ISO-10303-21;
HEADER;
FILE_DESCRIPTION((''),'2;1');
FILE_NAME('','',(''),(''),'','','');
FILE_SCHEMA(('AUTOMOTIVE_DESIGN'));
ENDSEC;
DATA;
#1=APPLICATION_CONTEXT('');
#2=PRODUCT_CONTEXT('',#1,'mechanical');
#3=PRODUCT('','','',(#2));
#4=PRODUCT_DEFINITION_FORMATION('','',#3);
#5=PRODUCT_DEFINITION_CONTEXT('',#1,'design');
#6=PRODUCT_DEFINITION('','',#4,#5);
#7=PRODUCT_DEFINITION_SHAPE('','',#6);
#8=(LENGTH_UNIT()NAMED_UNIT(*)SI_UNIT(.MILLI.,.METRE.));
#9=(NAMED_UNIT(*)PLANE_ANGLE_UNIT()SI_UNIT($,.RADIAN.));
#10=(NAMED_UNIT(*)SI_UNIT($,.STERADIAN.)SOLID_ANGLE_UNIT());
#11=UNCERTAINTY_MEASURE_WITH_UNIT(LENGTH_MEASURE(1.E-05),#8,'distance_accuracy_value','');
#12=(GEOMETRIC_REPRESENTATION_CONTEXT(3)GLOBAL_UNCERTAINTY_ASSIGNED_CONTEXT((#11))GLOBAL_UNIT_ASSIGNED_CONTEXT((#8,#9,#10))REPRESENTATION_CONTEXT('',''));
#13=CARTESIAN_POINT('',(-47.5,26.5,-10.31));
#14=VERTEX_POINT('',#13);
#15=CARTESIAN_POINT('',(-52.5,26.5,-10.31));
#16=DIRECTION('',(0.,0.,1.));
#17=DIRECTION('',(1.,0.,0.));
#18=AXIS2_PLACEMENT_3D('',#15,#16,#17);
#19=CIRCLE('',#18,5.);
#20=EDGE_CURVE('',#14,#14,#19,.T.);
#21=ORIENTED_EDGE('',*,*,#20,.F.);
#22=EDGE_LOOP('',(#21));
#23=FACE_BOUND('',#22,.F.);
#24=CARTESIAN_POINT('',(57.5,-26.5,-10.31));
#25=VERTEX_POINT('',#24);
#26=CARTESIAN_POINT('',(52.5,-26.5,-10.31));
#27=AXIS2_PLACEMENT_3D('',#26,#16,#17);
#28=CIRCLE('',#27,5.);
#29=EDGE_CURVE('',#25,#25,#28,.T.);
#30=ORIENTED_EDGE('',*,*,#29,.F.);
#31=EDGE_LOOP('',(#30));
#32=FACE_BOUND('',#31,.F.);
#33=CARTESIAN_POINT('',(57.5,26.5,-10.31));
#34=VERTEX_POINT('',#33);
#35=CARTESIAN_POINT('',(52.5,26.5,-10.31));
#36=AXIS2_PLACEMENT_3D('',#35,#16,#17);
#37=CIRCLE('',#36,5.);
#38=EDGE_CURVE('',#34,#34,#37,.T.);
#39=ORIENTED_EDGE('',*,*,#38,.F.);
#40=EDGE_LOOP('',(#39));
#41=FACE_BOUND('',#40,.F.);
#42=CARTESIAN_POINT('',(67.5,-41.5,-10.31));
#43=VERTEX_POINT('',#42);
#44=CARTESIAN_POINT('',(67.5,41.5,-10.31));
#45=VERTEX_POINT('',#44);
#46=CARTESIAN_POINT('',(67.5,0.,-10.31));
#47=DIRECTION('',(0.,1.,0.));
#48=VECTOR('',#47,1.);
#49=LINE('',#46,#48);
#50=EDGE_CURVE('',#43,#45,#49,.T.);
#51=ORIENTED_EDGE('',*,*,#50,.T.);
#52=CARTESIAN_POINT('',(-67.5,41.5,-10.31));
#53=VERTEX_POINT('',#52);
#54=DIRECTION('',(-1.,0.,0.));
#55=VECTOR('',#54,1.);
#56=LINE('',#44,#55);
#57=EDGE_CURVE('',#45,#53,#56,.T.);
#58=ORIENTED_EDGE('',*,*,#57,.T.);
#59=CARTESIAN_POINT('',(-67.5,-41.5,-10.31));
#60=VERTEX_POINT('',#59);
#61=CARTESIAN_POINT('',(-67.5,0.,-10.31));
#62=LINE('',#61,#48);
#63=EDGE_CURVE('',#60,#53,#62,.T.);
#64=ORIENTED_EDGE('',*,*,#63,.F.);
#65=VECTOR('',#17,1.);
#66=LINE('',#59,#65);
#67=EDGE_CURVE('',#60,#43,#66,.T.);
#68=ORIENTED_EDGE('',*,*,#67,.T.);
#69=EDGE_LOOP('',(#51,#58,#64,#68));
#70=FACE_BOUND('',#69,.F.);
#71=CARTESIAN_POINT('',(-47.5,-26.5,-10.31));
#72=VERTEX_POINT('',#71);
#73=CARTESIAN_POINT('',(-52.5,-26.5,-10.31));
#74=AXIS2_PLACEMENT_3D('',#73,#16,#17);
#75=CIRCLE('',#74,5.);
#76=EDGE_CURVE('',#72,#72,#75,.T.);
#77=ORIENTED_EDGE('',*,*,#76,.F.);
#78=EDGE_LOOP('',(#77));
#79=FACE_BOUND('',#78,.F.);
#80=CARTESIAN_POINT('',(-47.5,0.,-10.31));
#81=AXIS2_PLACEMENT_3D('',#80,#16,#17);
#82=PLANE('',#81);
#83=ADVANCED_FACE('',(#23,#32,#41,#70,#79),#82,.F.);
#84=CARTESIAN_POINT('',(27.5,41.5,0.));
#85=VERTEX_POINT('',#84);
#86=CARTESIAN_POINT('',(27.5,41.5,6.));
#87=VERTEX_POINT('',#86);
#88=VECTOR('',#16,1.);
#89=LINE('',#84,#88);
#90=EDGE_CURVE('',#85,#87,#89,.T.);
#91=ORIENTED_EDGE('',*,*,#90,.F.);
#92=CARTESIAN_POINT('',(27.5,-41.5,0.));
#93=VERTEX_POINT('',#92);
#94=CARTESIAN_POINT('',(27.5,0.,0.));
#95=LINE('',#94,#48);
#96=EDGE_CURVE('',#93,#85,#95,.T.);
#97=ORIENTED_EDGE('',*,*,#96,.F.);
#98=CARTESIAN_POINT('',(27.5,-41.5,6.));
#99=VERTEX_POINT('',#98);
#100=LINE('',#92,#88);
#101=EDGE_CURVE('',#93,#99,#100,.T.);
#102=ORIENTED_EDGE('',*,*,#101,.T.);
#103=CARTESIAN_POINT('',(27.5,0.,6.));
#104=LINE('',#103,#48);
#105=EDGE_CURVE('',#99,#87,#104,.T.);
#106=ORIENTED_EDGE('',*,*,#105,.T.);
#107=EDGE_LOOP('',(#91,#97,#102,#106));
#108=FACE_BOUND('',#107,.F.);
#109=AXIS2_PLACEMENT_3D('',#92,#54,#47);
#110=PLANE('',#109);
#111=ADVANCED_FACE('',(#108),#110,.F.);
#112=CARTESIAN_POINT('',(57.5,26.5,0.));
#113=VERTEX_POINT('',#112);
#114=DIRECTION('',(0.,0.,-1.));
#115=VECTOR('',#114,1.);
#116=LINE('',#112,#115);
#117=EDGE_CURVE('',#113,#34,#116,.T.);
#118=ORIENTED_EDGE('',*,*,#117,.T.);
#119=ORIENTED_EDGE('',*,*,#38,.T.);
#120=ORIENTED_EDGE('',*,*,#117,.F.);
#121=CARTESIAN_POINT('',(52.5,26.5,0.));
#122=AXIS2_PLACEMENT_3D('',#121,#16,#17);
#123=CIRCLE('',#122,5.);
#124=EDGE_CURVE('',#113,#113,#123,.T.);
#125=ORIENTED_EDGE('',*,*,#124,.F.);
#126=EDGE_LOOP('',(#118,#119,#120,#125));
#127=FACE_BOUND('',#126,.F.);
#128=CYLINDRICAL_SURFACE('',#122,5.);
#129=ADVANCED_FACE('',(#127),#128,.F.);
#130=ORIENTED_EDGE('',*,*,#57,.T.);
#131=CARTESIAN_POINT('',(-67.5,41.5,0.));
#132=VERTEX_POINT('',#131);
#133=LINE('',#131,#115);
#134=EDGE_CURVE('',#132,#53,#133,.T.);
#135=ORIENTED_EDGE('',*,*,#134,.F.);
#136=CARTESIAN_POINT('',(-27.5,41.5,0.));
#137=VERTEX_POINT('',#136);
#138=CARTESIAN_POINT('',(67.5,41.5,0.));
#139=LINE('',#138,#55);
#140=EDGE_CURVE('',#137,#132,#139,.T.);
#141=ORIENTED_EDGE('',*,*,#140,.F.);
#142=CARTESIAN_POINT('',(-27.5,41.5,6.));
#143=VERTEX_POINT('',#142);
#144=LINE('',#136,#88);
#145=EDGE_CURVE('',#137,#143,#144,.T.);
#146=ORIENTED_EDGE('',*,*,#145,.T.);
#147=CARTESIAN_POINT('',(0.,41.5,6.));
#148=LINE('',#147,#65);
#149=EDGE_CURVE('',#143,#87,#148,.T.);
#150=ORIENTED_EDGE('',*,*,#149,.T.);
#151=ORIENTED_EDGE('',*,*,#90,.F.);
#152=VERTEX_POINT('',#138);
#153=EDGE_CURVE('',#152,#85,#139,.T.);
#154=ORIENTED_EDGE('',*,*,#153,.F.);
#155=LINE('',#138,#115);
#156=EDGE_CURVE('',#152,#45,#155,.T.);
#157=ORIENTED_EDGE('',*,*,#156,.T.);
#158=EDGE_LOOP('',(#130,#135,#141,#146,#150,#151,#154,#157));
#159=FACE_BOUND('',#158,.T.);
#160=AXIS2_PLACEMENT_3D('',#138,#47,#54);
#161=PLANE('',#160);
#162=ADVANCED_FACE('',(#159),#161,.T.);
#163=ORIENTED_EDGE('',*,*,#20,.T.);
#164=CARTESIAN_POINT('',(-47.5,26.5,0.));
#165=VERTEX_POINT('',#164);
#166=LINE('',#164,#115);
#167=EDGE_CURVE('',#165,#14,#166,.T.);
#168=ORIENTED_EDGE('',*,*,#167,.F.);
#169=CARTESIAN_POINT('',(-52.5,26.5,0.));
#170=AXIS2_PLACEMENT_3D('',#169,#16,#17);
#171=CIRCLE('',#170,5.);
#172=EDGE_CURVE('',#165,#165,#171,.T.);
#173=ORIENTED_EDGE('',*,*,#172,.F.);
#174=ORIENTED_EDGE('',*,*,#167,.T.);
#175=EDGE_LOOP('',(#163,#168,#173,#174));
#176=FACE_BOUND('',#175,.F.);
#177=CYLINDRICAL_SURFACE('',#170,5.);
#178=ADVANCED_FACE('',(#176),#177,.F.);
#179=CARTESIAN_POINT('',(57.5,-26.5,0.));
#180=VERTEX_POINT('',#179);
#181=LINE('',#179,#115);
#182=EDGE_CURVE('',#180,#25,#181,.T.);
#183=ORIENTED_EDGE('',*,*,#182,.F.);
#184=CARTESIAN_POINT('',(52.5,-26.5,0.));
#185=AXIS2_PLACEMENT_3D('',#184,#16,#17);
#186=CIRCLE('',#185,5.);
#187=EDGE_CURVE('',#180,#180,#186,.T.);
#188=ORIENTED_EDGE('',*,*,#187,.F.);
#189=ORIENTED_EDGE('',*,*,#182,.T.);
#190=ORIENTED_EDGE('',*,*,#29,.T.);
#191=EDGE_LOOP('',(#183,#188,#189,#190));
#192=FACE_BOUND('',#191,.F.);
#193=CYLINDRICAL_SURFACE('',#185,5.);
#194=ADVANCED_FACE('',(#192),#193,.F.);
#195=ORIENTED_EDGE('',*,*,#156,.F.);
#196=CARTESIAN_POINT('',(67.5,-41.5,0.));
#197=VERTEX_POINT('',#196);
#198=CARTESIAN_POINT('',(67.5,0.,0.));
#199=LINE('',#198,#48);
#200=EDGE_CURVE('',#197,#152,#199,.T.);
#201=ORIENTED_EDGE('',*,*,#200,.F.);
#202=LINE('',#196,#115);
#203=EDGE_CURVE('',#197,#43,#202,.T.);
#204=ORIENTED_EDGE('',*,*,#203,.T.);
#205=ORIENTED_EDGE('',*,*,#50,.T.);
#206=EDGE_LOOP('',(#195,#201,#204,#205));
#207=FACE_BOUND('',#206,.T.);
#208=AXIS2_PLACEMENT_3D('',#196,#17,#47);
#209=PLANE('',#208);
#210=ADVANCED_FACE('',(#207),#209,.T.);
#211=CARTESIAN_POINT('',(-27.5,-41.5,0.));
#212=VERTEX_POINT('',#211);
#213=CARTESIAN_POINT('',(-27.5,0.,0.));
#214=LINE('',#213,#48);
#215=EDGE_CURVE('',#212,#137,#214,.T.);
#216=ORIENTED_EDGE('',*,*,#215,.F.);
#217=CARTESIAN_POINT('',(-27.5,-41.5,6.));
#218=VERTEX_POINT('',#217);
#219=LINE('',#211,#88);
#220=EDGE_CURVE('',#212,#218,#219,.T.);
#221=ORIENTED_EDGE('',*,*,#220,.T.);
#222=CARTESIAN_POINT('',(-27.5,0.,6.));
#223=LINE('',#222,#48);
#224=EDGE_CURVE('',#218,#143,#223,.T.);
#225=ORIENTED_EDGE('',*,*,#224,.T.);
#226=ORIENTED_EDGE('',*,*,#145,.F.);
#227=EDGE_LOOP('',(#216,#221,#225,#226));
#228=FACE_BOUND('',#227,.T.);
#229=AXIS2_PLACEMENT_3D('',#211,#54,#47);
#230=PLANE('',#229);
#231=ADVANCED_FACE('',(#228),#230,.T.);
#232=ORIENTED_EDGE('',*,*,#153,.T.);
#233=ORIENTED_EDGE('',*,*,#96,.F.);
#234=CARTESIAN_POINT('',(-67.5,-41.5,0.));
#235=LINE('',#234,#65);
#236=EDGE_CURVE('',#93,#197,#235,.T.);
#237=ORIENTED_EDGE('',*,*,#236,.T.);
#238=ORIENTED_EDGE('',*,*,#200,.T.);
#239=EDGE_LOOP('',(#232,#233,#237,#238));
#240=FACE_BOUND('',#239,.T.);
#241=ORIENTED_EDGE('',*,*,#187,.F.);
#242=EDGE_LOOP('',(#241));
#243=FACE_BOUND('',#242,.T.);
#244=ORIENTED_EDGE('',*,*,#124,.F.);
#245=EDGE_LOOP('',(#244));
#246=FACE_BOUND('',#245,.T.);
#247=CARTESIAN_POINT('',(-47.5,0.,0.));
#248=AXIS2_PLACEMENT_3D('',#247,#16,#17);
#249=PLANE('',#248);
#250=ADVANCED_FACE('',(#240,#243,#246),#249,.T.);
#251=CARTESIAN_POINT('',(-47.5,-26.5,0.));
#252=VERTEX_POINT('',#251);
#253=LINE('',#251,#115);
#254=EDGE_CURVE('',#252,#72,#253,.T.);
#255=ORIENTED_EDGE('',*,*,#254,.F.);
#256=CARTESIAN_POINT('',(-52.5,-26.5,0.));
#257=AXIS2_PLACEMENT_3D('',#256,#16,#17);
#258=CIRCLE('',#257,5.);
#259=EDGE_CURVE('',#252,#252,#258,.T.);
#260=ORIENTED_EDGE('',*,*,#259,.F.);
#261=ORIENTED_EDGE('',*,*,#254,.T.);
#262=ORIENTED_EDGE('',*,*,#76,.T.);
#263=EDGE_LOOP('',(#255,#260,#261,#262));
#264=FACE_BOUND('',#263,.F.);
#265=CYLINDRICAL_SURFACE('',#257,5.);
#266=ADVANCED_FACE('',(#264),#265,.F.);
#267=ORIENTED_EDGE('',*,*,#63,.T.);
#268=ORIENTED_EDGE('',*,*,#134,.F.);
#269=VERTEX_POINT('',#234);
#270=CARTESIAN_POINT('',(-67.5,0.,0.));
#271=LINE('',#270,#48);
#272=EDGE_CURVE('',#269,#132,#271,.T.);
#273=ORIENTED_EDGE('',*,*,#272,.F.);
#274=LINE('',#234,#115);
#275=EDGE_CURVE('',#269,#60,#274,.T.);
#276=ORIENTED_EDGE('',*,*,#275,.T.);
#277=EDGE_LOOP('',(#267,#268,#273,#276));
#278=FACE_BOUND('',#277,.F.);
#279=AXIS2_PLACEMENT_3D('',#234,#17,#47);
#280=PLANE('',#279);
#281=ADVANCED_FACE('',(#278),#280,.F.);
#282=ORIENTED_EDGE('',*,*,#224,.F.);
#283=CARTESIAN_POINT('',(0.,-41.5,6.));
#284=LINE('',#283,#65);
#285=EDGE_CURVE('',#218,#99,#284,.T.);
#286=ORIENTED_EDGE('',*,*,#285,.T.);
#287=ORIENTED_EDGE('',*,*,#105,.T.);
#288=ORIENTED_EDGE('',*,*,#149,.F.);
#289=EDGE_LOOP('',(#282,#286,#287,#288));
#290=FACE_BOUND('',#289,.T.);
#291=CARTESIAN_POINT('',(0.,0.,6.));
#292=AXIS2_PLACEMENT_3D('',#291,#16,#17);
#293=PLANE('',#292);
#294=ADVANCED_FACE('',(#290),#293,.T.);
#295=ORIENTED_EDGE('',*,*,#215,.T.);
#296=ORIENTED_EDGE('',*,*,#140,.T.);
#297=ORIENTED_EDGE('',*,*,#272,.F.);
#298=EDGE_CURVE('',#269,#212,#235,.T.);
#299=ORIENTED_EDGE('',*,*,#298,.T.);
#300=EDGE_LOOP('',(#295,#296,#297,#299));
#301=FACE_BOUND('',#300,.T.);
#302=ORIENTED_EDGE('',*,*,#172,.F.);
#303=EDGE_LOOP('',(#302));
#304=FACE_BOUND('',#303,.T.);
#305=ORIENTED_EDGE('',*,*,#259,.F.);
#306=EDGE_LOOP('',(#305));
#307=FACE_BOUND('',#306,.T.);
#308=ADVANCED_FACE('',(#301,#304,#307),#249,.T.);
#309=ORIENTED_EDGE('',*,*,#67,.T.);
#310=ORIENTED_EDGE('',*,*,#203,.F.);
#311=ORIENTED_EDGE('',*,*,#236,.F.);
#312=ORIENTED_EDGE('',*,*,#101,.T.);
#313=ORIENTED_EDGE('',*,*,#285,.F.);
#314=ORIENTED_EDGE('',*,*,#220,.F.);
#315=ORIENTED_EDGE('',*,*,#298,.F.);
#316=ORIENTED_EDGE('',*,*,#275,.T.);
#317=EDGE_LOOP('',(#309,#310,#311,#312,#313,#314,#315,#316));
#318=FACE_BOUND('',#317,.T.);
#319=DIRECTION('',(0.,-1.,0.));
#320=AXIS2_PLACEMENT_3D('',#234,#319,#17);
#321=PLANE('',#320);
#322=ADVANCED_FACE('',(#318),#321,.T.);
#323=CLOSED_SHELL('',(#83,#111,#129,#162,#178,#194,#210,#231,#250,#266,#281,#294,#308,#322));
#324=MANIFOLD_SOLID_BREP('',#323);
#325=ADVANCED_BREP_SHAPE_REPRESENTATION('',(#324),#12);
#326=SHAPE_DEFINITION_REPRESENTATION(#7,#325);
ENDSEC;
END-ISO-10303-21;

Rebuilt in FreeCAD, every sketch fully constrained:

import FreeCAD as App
import Part
import Sketcher

V = App.Vector


def add_polygon(sketch, points):
    """Adds a closed chain of lines whose ends are joined by coincident constraints."""
    first, n = sketch.GeometryCount, len(points)
    for a, b in zip(points, points[1:] + points[:1]):
        sketch.addGeometry(Part.LineSegment(App.Vector(*a, 0), App.Vector(*b, 0)), False)
    for i in range(n):
        sketch.addConstraint(Sketcher.Constraint("Coincident", first + i, 2, first + (i + 1) % n, 1))

doc = App.newDocument("Part")
body = doc.addObject("PartDesign::Body", "Body")

# Sketch on XY plane
sketch1 = doc.addObject("Sketcher::SketchObject", "Sketch")
body.addObject(sketch1)
sketch1.AttachmentSupport = (doc.XY_Plane, [""])
sketch1.MapMode = "FlatFace"
add_polygon(sketch1, [(-68, 42), (-68, -42), (68, -42), (68, 42)])  # lines 0-3
sketch1.addConstraint([
    Sketcher.Constraint("Vertical", 0),
    Sketcher.Constraint("Horizontal", 1),
    Sketcher.Constraint("Vertical", 2),
    Sketcher.Constraint("Horizontal", 3),
    Sketcher.Constraint("Symmetric", 0, 2, 2, 2, -1, 1),
    Sketcher.Constraint("DistanceX", 1, 1, 1, 2, 135.0),
    Sketcher.Constraint("DistanceY", 0, 2, 0, 1, 83.0),
])
pad1 = doc.addObject("PartDesign::Pad", "Pad")
body.addObject(pad1)
pad1.Profile = sketch1
pad1.Length = 10.31
pad1.Reversed = True

# Sketch on XY plane
sketch2 = doc.addObject("Sketcher::SketchObject", "Sketch001")
body.addObject(sketch2)
sketch2.AttachmentSupport = (doc.XY_Plane, [""])
sketch2.MapMode = "FlatFace"
sketch2.addGeometry([
    Part.Circle(V(52, 26, 0), V(0, 0, 1), 5),
    Part.Circle(V(52, -26, 0), V(0, 0, 1), 5),
    Part.Circle(V(-52, 26, 0), V(0, 0, 1), 5),
    Part.Circle(V(-52, -26, 0), V(0, 0, 1), 5),
], False)
sketch2.addConstraint([
    Sketcher.Constraint("Equal", 0, 1),
    Sketcher.Constraint("Equal", 1, 2),
    Sketcher.Constraint("Equal", 2, 3),
    Sketcher.Constraint("Symmetric", 1, 3, 2, 3, -1, 1),
    Sketcher.Constraint("Symmetric", 0, 3, 3, 3, -1, 1),
    Sketcher.Constraint("Symmetric", 0, 3, 2, 3, -2),
    Sketcher.Constraint("Diameter", 0, 10.0),
    Sketcher.Constraint("DistanceY", 1, 3, 0, 3, 53.0),
    Sketcher.Constraint("DistanceX", 2, 3, 0, 3, 105.0),
])
pocket1 = doc.addObject("PartDesign::Pocket", "Pocket")
body.addObject(pocket1)
pocket1.Profile = sketch2
pocket1.Type = "ThroughAll"

# Sketch on XY plane
sketch3 = doc.addObject("Sketcher::SketchObject", "Sketch002")
body.addObject(sketch3)
sketch3.AttachmentSupport = (doc.XY_Plane, [""])
sketch3.MapMode = "FlatFace"
add_polygon(sketch3, [(-28, 42), (-28, -42), (28, -42), (28, 42)])  # lines 0-3
sketch3.addConstraint([
    Sketcher.Constraint("Vertical", 0),
    Sketcher.Constraint("Horizontal", 1),
    Sketcher.Constraint("Vertical", 2),
    Sketcher.Constraint("Horizontal", 3),
    Sketcher.Constraint("Symmetric", 0, 2, 2, 2, -1, 1),
    Sketcher.Constraint("DistanceX", 1, 1, 1, 2, 55.0),
    Sketcher.Constraint("DistanceY", 0, 2, 0, 1, 83.0),
])
pad2 = doc.addObject("PartDesign::Pad", "Pad001")
body.addObject(pad2)
pad2.Profile = sketch3
pad2.Length = 6

doc.recompute()
